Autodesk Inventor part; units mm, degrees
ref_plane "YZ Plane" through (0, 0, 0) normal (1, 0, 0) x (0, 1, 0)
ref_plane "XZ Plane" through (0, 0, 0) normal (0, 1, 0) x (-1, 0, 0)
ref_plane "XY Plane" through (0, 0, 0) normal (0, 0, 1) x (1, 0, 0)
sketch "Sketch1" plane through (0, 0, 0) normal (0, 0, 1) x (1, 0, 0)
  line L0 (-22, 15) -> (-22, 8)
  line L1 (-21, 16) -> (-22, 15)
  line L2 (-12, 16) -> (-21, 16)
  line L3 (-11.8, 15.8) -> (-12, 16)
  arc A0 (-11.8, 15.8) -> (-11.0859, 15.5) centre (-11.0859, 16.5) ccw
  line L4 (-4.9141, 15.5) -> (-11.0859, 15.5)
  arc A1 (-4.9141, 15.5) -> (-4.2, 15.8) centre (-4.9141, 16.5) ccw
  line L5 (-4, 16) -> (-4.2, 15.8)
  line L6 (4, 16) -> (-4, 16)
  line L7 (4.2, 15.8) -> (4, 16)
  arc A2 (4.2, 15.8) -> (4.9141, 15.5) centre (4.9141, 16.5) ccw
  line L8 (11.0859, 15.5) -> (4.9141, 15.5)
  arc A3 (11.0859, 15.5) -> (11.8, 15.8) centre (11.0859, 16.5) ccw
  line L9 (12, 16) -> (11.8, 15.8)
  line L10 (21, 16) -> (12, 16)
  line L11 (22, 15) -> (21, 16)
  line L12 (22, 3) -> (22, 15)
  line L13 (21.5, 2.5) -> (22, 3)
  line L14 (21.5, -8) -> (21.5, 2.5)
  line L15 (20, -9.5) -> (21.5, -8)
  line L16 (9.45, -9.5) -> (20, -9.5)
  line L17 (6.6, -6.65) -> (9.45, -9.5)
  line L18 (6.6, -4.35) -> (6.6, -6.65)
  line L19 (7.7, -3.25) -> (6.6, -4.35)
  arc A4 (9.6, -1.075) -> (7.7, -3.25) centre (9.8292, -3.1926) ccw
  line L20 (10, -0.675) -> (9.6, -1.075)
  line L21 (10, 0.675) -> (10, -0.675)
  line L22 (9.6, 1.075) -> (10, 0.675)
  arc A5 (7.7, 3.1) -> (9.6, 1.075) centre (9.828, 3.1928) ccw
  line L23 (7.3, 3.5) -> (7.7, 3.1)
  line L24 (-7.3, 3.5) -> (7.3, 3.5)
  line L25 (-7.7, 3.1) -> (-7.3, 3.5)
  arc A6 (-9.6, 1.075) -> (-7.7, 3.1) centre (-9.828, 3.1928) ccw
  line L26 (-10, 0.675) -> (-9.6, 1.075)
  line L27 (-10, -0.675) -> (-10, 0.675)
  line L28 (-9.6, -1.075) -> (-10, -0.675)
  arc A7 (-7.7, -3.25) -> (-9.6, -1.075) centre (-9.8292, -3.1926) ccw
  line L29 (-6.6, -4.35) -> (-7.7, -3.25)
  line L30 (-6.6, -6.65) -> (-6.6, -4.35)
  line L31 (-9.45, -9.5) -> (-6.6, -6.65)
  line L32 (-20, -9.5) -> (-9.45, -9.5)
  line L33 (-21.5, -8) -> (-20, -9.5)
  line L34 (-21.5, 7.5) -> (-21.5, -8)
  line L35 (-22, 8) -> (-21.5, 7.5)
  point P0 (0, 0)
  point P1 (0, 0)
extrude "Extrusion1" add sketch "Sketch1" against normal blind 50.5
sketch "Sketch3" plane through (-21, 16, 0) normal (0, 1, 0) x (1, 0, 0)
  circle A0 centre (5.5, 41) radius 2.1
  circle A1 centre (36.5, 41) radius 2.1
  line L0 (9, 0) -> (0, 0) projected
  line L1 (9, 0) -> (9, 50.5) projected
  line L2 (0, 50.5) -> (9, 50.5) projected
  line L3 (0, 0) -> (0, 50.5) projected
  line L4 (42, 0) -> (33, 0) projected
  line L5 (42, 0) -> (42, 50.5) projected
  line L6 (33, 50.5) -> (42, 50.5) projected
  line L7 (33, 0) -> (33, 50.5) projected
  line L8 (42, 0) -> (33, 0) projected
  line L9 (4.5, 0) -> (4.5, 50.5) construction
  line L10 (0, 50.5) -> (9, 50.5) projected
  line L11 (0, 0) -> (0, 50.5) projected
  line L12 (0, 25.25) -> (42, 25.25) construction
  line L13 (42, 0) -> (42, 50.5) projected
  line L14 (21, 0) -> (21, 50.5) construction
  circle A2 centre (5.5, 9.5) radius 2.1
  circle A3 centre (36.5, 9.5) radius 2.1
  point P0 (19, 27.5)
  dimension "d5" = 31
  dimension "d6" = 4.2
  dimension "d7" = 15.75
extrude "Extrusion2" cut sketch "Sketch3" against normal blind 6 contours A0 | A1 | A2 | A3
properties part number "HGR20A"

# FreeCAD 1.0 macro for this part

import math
import FreeCAD as App
import Part
import Sketcher
from FreeCAD import Vector

doc = App.newDocument("Part")
body = doc.addObject("PartDesign::Body", "Body")

# Sketch on XY plane
sketch1 = body.newObject("Sketcher::SketchObject", "Sketch")
sketch1.AttachmentSupport = (doc.getObject("XY_Plane"), [""])
sketch1.MapMode = "FlatFace"
sketch1.addGeometry([
    Part.LineSegment(Vector(-21, 16, 0), Vector(-22, 15, 0)),  # 0
    Part.LineSegment(Vector(-22, 15, 0), Vector(-22, 8, 0)),  # 1
    Part.LineSegment(Vector(-22, 8, 0), Vector(-21.5, 7.5, 0)),  # 2
    Part.LineSegment(Vector(-21.5, 7.5, 0), Vector(-21.5, -8, 0)),  # 3
    Part.LineSegment(Vector(-21.5, -8, 0), Vector(-20, -9.5, 0)),  # 4
    Part.LineSegment(Vector(-20, -9.5, 0), Vector(-9.45, -9.5, 0)),  # 5
    Part.LineSegment(Vector(-9.45, -9.5, 0), Vector(-6.6, -6.65, 0)),  # 6
    Part.LineSegment(Vector(-6.6, -6.65, 0), Vector(-6.6, -4.35, 0)),  # 7
    Part.LineSegment(Vector(-6.6, -4.35, 0), Vector(-7.7, -3.25, 0)),  # 8
    Part.ArcOfCircle(Part.Circle(Vector(-9.83, -3.19, 0), Vector(0, 0, 1), 2.13), math.radians(-2), math.radians(84)),  # 9
    Part.LineSegment(Vector(-9.6, -1.07, 0), Vector(-10, -0.68, 0)),  # 10
    Part.LineSegment(Vector(-10, -0.68, 0), Vector(-10, 0.68, 0)),  # 11
    Part.LineSegment(Vector(-10, 0.68, 0), Vector(-9.6, 1.07, 0)),  # 12
    Part.ArcOfCircle(Part.Circle(Vector(-9.83, 3.19, 0), Vector(0, 0, 1), 2.13), math.radians(-84), math.radians(-2)),  # 13
    Part.LineSegment(Vector(-7.7, 3.1, 0), Vector(-7.3, 3.5, 0)),  # 14
    Part.LineSegment(Vector(-7.3, 3.5, 0), Vector(7.3, 3.5, 0)),  # 15
    Part.LineSegment(Vector(7.3, 3.5, 0), Vector(7.7, 3.1, 0)),  # 16
    Part.ArcOfCircle(Part.Circle(Vector(9.83, 3.19, 0), Vector(0, 0, 1), 2.13), math.radians(-178), math.radians(-96)),  # 17
    Part.LineSegment(Vector(9.6, 1.07, 0), Vector(10, 0.68, 0)),  # 18
    Part.LineSegment(Vector(10, 0.68, 0), Vector(10, -0.68, 0)),  # 19
    Part.LineSegment(Vector(10, -0.68, 0), Vector(9.6, -1.07, 0)),  # 20
    Part.ArcOfCircle(Part.Circle(Vector(9.83, -3.19, 0), Vector(0, 0, 1), 2.13), math.radians(96), math.radians(182)),  # 21
    Part.LineSegment(Vector(7.7, -3.25, 0), Vector(6.6, -4.35, 0)),  # 22
    Part.LineSegment(Vector(6.6, -4.35, 0), Vector(6.6, -6.65, 0)),  # 23
    Part.LineSegment(Vector(6.6, -6.65, 0), Vector(9.45, -9.5, 0)),  # 24
    Part.LineSegment(Vector(9.45, -9.5, 0), Vector(20, -9.5, 0)),  # 25
    Part.LineSegment(Vector(20, -9.5, 0), Vector(21.5, -8, 0)),  # 26
    Part.LineSegment(Vector(21.5, -8, 0), Vector(21.5, 2.5, 0)),  # 27
    Part.LineSegment(Vector(21.5, 2.5, 0), Vector(22, 3, 0)),  # 28
    Part.LineSegment(Vector(22, 3, 0), Vector(22, 15, 0)),  # 29
    Part.LineSegment(Vector(22, 15, 0), Vector(21, 16, 0)),  # 30
    Part.LineSegment(Vector(21, 16, 0), Vector(12, 16, 0)),  # 31
    Part.LineSegment(Vector(12, 16, 0), Vector(11.8, 15.8, 0)),  # 32
    Part.ArcOfCircle(Part.Circle(Vector(11.09, 16.5, 0), Vector(0, 0, 1), 1), math.radians(-90), math.radians(-44)),  # 33
    Part.LineSegment(Vector(11.09, 15.5, 0), Vector(4.91, 15.5, 0)),  # 34
    Part.ArcOfCircle(Part.Circle(Vector(4.91, 16.5, 0), Vector(0, 0, 1), 1), math.radians(-136), math.radians(-90)),  # 35
    Part.LineSegment(Vector(4.2, 15.8, 0), Vector(4, 16, 0)),  # 36
    Part.LineSegment(Vector(4, 16, 0), Vector(-4, 16, 0)),  # 37
    Part.LineSegment(Vector(-4, 16, 0), Vector(-4.2, 15.8, 0)),  # 38
    Part.ArcOfCircle(Part.Circle(Vector(-4.91, 16.5, 0), Vector(0, 0, 1), 1), math.radians(-90), math.radians(-44)),  # 39
    Part.LineSegment(Vector(-4.91, 15.5, 0), Vector(-11.09, 15.5, 0)),  # 40
    Part.ArcOfCircle(Part.Circle(Vector(-11.09, 16.5, 0), Vector(0, 0, 1), 1), math.radians(-136), math.radians(-90)),  # 41
    Part.LineSegment(Vector(-11.8, 15.8, 0), Vector(-12, 16, 0)),  # 42
    Part.LineSegment(Vector(-12, 16, 0), Vector(-21, 16, 0)),  # 43
], False)
sketch1.addConstraint([
    Sketcher.Constraint("Coincident", 0, 2, 1, 1),
    Sketcher.Constraint("Coincident", 1, 2, 2, 1),
    Sketcher.Constraint("Coincident", 2, 2, 3, 1),
    Sketcher.Constraint("Coincident", 3, 2, 4, 1),
    Sketcher.Constraint("Coincident", 4, 2, 5, 1),
    Sketcher.Constraint("Coincident", 5, 2, 6, 1),
    Sketcher.Constraint("Coincident", 6, 2, 7, 1),
    Sketcher.Constraint("Coincident", 7, 2, 8, 1),
    Sketcher.Constraint("Coincident", 8, 2, 9, 1),
    Sketcher.Constraint("Coincident", 9, 2, 10, 1),
    Sketcher.Constraint("Coincident", 10, 2, 11, 1),
    Sketcher.Constraint("Coincident", 11, 2, 12, 1),
    Sketcher.Constraint("Coincident", 12, 2, 13, 1),
    Sketcher.Constraint("Coincident", 13, 2, 14, 1),
    Sketcher.Constraint("Coincident", 14, 2, 15, 1),
    Sketcher.Constraint("Coincident", 15, 2, 16, 1),
    Sketcher.Constraint("Coincident", 16, 2, 17, 1),
    Sketcher.Constraint("Coincident", 17, 2, 18, 1),
    Sketcher.Constraint("Coincident", 18, 2, 19, 1),
    Sketcher.Constraint("Coincident", 19, 2, 20, 1),
    Sketcher.Constraint("Coincident", 20, 2, 21, 1),
    Sketcher.Constraint("Coincident", 21, 2, 22, 1),
    Sketcher.Constraint("Coincident", 22, 2, 23, 1),
    Sketcher.Constraint("Coincident", 23, 2, 24, 1),
    Sketcher.Constraint("Coincident", 24, 2, 25, 1),
    Sketcher.Constraint("Coincident", 25, 2, 26, 1),
    Sketcher.Constraint("Coincident", 26, 2, 27, 1),
    Sketcher.Constraint("Coincident", 27, 2, 28, 1),
    Sketcher.Constraint("Coincident", 28, 2, 29, 1),
    Sketcher.Constraint("Coincident", 29, 2, 30, 1),
    Sketcher.Constraint("Coincident", 30, 2, 31, 1),
    Sketcher.Constraint("Coincident", 31, 2, 32, 1),
    Sketcher.Constraint("Coincident", 32, 2, 33, 2),
    Sketcher.Constraint("Tangent", 33, 1, 34, 1),
    Sketcher.Constraint("Tangent", 34, 2, 35, 2),
    Sketcher.Constraint("Coincident", 35, 1, 36, 1),
    Sketcher.Constraint("Coincident", 36, 2, 37, 1),
    Sketcher.Constraint("Coincident", 37, 2, 38, 1),
    Sketcher.Constraint("Coincident", 38, 2, 39, 2),
    Sketcher.Constraint("Tangent", 39, 1, 40, 1),
    Sketcher.Constraint("Tangent", 40, 2, 41, 2),
    Sketcher.Constraint("Coincident", 41, 1, 42, 1),
    Sketcher.Constraint("Coincident", 42, 2, 43, 1),
    Sketcher.Constraint("Coincident", 43, 2, 0, 1),
    Sketcher.Constraint("Vertical", 1),
    Sketcher.Constraint("Vertical", 3),
    Sketcher.Constraint("Horizontal", 5),
    Sketcher.Constraint("Vertical", 7),
    Sketcher.Constraint("Vertical", 11),
    Sketcher.Constraint("Horizontal", 15),
    Sketcher.Constraint("Vertical", 19),
    Sketcher.Constraint("Vertical", 23),
    Sketcher.Constraint("Horizontal", 25),
    Sketcher.Constraint("Vertical", 27),
    Sketcher.Constraint("Vertical", 29),
    Sketcher.Constraint("Horizontal", 31),
    Sketcher.Constraint("Horizontal", 34),
    Sketcher.Constraint("Horizontal", 37),
    Sketcher.Constraint("Horizontal", 40),
    Sketcher.Constraint("Horizontal", 43),
    Sketcher.Constraint("Equal", 9, 13),
    Sketcher.Constraint("Equal", 13, 17),
    Sketcher.Constraint("Equal", 17, 21),
    Sketcher.Constraint("Equal", 33, 35),
    Sketcher.Constraint("Equal", 35, 39),
    Sketcher.Constraint("Equal", 39, 41),
    Sketcher.Constraint("Symmetric", 9, 2, 17, 2, -1, 1),
    Sketcher.Constraint("Symmetric", 10, 2, 18, 2, -1, 1),
    Sketcher.Constraint("Symmetric", 12, 2, 20, 2, -1, 1),
    Sketcher.Constraint("Symmetric", 13, 3, 17, 3, -2),
    Sketcher.Constraint("Symmetric", 35, 3, 39, 3, -2),
    Sketcher.Constraint("Symmetric", 8, 2, 21, 2, -2),
    Sketcher.Constraint("Symmetric", 7, 2, 22, 2, -2),
    Sketcher.Constraint("Symmetric", 5, 2, 24, 2, -2),
    Sketcher.Constraint("Symmetric", 3, 2, 26, 2, -2),
    Sketcher.Constraint("Symmetric", 0, 2, 29, 2, -2),
    Sketcher.Constraint("Symmetric", 32, 2, 41, 1, -2),
    Sketcher.Constraint("Symmetric", 31, 2, 42, 2, -2),
    Sketcher.Constraint("Perpendicular", 0, 2),
    Sketcher.Constraint("Parallel", 2, 4),
    Sketcher.Constraint("Perpendicular", 4, 6),
    Sketcher.Constraint("Perpendicular", 6, 8),
    Sketcher.Constraint("Parallel", 8, 10),
    Sketcher.Constraint("Perpendicular", 10, 12),
    Sketcher.Constraint("Parallel", 12, 14),
    Sketcher.Constraint("Perpendicular", 14, 16),
    Sketcher.Constraint("Perpendicular", 18, 20),
    Sketcher.Constraint("Parallel", 20, 22),
    Sketcher.Constraint("Perpendicular", 22, 24),
    Sketcher.Constraint("Perpendicular", 24, 26),
    Sketcher.Constraint("Parallel", 26, 28),
    Sketcher.Constraint("Perpendicular", 28, 30),
    Sketcher.Constraint("Perpendicular", 30, 32),
    Sketcher.Constraint("Perpendicular", 32, 36),
    Sketcher.Constraint("Perpendicular", 36, 38),
    Sketcher.Constraint("Horizontal", 13, 2, 16, 2),
    Sketcher.Constraint("Horizontal", 12, 2, 17, 2),
    Sketcher.Constraint("Horizontal", 32, 2, 35, 1),
    Sketcher.Constraint("Horizontal", 31, 2, 36, 2),
    Sketcher.Constraint("Horizontal", 35, 1, 38, 2),
    Sketcher.Constraint("Vertical", 8, 2, 13, 2),
    Sketcher.Constraint("Equal", 12, 14),
    Sketcher.Constraint("Radius", 33, 1.0),
    Sketcher.Constraint("DistanceX", 31, 2, 31, 1, 9.0),
    Sketcher.Constraint("DistanceX", 37, 2, 37, 1, 8.0),
    Sketcher.Constraint("DistanceY", 1, 2, 1, 1, 7.0),
    Sketcher.Constraint("DistanceY", 29, 1, 29, 2, 12.0),
    Sketcher.Constraint("Radius", 9, 2.13),
    Sketcher.Constraint("DistanceX", 15, 1, 15, 2, 14.6),
    Sketcher.Constraint("DistanceY", 3, 2, 3, 1, 15.5),
    Sketcher.Constraint("DistanceY", 7, 1, 7, 2, 2.3),
    Sketcher.Constraint("DistanceX", 0, 2, -1, 1, 22.0),
    Sketcher.Constraint("DistanceY", -1, 1, 0, 2, 15.0),
    Sketcher.Constraint("DistanceY", 3, 2, -1, 1, 8.0),
    Sketcher.Constraint("DistanceX", 4, 2, -1, 1, 20.0),
    Sketcher.Constraint("DistanceX", 10, 2, -1, 1, 10.0),
    Sketcher.Constraint("DistanceX", -1, 1, 30, 2, 21.0),
    Sketcher.Constraint("DistanceY", 2, 2, 41, 3, 9.0),
    Sketcher.Constraint("DistanceX", 9, 2, 7, 2, 3.0),
    Sketcher.Constraint("DistanceY", 15, 2, 35, 3, 13.0),
    Sketcher.Constraint("DistanceX", 5, 1, 5, 2, 10.55),
    Sketcher.Constraint("DistanceY", 11, 1, 11, 2, 1.35),
    Sketcher.Constraint("DistanceX", 6, 2, -1, 1, 6.6),
    Sketcher.Constraint("DistanceX", -1, 1, 32, 2, 11.8),
])
pad1 = body.newObject("PartDesign::Pad", "Pad")
pad1.Profile = sketch1
pad1.Length = 50.5
pad1.Reversed = True

# Sketch on XZ plane
sketch2 = body.newObject("Sketcher::SketchObject", "Sketch001")
sketch2.AttachmentSupport = (doc.getObject("XZ_Plane"), [""])
sketch2.MapMode = "FlatFace"
sketch2.AttachmentOffset = App.Placement(Vector(0, 0, -16), App.Rotation())
sketch2.addGeometry([
    Part.Circle(Vector(-15.5, -41, 0), Vector(0, 0, 1), 2.1),
    Part.Circle(Vector(15.5, -41, 0), Vector(0, 0, 1), 2.1),
    Part.Circle(Vector(-15.5, -9.5, 0), Vector(0, 0, 1), 2.1),
    Part.Circle(Vector(15.5, -9.5, 0), Vector(0, 0, 1), 2.1),
], False)
sketch2.addConstraint([
    Sketcher.Constraint("Equal", 0, 1),
    Sketcher.Constraint("Equal", 1, 2),
    Sketcher.Constraint("Equal", 2, 3),
    Sketcher.Constraint("Symmetric", 0, 3, 1, 3, -2),
    Sketcher.Constraint("Symmetric", 2, 3, 3, 3, -2),
    Sketcher.Constraint("Vertical", 0, 3, 2, 3),
    Sketcher.Constraint("Diameter", 0, 4.2),
    Sketcher.Constraint("DistanceX", 0, 3, 1, 3, 31.0),
    Sketcher.Constraint("DistanceY", 0, 3, -1, 1, 41.0),
    Sketcher.Constraint("DistanceY", 2, 3, -1, 1, 9.5),
])
pocket1 = body.newObject("PartDesign::Pocket", "Pocket")
pocket1.Profile = sketch2
pocket1.Length = 6
pocket1.Reversed = True

doc.recompute()
